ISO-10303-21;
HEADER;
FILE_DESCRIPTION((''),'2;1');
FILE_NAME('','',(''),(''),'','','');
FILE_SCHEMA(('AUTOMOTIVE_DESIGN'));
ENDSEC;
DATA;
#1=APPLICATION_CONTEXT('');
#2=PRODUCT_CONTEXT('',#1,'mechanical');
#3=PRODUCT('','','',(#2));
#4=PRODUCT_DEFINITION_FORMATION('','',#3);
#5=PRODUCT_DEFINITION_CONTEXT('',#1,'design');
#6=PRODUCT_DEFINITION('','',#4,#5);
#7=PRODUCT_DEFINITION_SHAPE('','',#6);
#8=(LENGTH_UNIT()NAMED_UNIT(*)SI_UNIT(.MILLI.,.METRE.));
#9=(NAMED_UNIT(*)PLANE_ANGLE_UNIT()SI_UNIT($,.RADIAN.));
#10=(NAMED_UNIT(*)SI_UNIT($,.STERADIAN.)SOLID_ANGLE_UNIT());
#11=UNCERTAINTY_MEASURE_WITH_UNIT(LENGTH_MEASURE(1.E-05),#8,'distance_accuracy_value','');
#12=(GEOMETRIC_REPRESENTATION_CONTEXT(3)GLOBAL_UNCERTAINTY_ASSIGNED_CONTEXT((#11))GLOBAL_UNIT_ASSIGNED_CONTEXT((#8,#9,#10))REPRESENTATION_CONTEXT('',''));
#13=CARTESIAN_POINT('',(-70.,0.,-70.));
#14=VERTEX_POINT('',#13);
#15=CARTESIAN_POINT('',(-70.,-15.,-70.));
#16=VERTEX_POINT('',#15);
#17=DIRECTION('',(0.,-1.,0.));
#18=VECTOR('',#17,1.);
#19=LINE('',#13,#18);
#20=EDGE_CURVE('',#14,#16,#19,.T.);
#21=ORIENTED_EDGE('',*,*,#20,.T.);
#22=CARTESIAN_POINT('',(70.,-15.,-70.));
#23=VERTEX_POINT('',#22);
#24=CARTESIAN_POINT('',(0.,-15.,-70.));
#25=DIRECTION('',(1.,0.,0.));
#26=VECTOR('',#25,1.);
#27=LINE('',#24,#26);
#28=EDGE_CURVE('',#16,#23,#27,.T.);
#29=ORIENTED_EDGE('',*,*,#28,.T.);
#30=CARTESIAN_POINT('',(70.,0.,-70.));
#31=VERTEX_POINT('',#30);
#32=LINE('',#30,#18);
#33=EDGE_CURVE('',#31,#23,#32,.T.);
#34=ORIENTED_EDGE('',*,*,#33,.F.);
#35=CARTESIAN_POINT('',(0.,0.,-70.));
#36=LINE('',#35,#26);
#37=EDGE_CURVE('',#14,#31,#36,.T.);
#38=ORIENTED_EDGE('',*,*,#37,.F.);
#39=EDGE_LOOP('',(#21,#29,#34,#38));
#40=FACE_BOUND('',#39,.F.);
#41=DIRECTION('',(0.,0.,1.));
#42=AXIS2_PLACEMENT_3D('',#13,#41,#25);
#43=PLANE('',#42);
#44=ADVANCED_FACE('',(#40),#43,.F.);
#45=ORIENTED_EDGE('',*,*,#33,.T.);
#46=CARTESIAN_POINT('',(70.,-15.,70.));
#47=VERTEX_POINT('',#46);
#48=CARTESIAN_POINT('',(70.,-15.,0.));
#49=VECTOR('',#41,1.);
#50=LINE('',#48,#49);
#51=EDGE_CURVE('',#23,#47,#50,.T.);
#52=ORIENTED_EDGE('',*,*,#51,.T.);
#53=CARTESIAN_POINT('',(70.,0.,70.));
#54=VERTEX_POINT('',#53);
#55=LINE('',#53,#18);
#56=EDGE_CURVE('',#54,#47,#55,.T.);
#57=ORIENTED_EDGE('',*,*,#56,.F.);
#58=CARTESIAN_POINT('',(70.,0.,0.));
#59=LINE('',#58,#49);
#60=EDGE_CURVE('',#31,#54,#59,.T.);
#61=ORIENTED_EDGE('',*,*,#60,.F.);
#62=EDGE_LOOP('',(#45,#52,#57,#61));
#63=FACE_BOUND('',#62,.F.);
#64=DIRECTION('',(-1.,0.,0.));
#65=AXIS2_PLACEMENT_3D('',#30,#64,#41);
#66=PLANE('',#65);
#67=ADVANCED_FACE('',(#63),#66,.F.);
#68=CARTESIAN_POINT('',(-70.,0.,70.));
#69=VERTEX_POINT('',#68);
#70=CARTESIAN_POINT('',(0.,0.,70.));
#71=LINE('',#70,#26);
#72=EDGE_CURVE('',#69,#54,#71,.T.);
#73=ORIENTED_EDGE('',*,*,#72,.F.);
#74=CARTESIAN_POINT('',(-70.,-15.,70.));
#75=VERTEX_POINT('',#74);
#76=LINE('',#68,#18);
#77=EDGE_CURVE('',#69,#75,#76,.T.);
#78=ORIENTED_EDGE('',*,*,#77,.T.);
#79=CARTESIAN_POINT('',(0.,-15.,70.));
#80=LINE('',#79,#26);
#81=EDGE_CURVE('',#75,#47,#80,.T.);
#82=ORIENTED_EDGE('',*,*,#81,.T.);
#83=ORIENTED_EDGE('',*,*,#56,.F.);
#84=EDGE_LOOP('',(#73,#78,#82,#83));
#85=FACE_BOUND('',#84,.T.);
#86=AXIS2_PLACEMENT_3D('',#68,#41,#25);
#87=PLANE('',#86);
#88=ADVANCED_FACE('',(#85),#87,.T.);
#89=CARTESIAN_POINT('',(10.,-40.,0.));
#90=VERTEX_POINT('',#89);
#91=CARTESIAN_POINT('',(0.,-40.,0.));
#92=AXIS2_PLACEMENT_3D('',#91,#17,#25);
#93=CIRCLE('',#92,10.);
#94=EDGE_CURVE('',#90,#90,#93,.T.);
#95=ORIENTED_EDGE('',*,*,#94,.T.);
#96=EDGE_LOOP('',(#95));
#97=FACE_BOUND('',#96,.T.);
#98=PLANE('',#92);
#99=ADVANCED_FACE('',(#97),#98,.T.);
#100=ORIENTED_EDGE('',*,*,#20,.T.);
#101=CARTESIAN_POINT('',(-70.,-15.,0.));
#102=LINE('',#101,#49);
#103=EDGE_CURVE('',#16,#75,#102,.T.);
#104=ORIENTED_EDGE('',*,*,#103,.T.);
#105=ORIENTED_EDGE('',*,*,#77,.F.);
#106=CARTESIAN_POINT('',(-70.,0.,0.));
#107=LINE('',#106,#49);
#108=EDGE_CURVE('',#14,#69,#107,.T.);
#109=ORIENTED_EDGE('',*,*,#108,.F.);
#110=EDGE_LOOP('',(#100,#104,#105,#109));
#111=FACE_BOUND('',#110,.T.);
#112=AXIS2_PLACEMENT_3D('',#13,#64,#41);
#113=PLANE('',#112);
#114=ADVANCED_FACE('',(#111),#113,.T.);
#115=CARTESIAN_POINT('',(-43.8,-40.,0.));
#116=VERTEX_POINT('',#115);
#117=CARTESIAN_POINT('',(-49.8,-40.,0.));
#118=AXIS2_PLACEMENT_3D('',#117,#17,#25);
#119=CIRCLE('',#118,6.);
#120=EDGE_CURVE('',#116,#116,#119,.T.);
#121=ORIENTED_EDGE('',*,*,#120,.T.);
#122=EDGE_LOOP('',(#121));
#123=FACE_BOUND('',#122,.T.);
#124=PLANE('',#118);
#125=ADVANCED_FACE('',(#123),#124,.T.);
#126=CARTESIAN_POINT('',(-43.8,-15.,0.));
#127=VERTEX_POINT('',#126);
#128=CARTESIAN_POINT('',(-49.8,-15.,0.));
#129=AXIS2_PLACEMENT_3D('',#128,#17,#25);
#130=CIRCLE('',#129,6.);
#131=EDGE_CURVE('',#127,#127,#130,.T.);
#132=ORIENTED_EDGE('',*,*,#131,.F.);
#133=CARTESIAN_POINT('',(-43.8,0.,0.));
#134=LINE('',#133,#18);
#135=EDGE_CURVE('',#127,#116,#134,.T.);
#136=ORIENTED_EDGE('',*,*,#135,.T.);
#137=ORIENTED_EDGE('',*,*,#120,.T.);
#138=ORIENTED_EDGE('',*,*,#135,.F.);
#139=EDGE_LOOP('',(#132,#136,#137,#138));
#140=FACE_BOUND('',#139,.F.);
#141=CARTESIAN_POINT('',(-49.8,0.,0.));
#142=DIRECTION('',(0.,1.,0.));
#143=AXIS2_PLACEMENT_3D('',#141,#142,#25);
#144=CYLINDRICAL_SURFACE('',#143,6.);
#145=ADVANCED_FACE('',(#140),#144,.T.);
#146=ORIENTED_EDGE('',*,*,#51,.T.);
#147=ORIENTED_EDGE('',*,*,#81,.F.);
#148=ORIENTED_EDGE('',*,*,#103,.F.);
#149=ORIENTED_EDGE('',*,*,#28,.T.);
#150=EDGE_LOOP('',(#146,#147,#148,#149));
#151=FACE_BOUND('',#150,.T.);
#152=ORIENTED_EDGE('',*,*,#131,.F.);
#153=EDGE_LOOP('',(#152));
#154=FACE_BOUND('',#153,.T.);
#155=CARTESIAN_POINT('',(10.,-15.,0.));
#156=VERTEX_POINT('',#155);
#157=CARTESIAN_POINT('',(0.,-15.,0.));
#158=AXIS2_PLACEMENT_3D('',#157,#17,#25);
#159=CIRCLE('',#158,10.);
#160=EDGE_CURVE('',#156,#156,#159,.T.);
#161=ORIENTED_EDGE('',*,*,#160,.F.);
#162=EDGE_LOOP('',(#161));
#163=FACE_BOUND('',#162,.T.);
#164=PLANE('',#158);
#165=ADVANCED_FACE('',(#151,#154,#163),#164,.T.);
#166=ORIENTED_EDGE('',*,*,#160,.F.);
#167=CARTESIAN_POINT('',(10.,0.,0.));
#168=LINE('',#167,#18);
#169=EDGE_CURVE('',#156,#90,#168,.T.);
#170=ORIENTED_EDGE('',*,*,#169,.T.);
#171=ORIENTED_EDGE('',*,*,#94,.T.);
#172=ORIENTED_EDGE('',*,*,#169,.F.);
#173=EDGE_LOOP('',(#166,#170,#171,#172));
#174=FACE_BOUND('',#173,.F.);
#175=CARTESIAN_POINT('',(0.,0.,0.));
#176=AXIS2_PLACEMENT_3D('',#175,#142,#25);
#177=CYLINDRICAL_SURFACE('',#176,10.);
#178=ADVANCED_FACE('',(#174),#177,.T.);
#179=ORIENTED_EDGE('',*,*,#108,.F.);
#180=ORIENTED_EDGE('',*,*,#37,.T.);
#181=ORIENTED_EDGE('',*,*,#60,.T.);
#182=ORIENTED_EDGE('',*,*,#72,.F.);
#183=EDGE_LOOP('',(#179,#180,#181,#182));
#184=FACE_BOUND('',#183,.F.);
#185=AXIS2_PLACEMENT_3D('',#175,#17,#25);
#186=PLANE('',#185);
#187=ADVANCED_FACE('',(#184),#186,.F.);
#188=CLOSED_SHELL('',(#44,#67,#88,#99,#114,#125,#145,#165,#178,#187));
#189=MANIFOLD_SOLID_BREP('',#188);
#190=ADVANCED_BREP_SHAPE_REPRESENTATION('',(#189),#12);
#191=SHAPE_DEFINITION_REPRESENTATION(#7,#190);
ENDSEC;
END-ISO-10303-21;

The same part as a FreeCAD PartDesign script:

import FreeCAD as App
import Part
import Sketcher
from FreeCAD import Vector
Q = App.Units.Quantity

doc = App.newDocument("Part")
params = doc.addObject("Spreadsheet::Sheet", "Params")
for row, (alias, value) in enumerate([
    ("sketch1_diameter", "12 mm"),
    ("pad1_length", "40 mm"),
    ("sketch2_diameter", "20 mm"),
    ("pad2_length", "40 mm"),
    ("sketch3_diameter", "12 mm"),
    ("sketch3_diameter2", "20 mm"),
    ("sketch3_width", "140 mm"),
    ("pad3_length", "15 mm"),
], start=1):
    params.set(f"A{row}", alias)
    params.set(f"B{row}", "=" + value)
    params.setAlias(f"B{row}", alias)

body = doc.addObject("PartDesign::Body", "Body")

# Sketch on XZ plane
sketch1 = body.newObject("Sketcher::SketchObject", "Sketch")
sketch1.AttachmentSupport = (doc.getObject("XZ_Plane"), [""])
sketch1.MapMode = "FlatFace"
sketch1.addGeometry(Part.Circle(Vector(-50, 0, 0), Vector(0, 0, 1), 6), False)
sketch1.addConstraint(Sketcher.Constraint("PointOnObject", 0, 3, -1))
sketch1.addConstraint(Sketcher.Constraint("Diameter", 0, Q("12 mm")))
sketch1.addConstraint(Sketcher.Constraint("DistanceX", 0, 3, -1, 1, Q("49.8 mm")))
sketch1.setExpression("Constraints[1]", "Params.sketch1_diameter")
pad1 = body.newObject("PartDesign::Pad", "Pad")
pad1.Profile = sketch1
pad1.setExpression("Length", "Params.pad1_length")
body2 = doc.addObject("PartDesign::Body", "Body001")

# Sketch on XZ plane
sketch2 = body2.newObject("Sketcher::SketchObject", "Sketch001")
sketch2.AttachmentSupport = (doc.getObject("XZ_Plane001"), [""])
sketch2.MapMode = "FlatFace"
sketch2.addGeometry(Part.Circle(Vector(0, 0, 0), Vector(0, 0, 1), 10), False)
sketch2.addConstraint(Sketcher.Constraint("Coincident", 0, 3, -1, 1))
sketch2.addConstraint(Sketcher.Constraint("Diameter", 0, Q("20 mm")))
sketch2.setExpression("Constraints[1]", "Params.sketch2_diameter")
pad2 = body2.newObject("PartDesign::Pad", "Pad001")
pad2.Profile = sketch2
pad2.setExpression("Length", "Params.pad2_length")
body.AllowCompound = True
doc.recompute()

boolean = body.newObject("PartDesign::Boolean", "Boolean")
boolean.Type = "Fuse"
boolean.addObjects([body2])

# Sketch on XZ plane
sketch3 = body.newObject("Sketcher::SketchObject", "Sketch002")
sketch3.AttachmentSupport = (doc.getObject("XZ_Plane"), [""])
sketch3.MapMode = "FlatFace"
sketch3.addGeometry(Part.LineSegment(Vector(-70, 70, 0), Vector(-70, -70, 0)), False)
sketch3.addGeometry(Part.LineSegment(Vector(-70, -70, 0), Vector(70, -70, 0)), False)
sketch3.addGeometry(Part.LineSegment(Vector(70, -70, 0), Vector(70, 70, 0)), False)
sketch3.addGeometry(Part.LineSegment(Vector(70, 70, 0), Vector(-70, 70, 0)), False)
sketch3.addGeometry(Part.Circle(Vector(-50, 0, 0), Vector(0, 0, 1), 6), False)
sketch3.addGeometry(Part.Circle(Vector(0, 0, 0), Vector(0, 0, 1), 10), False)
sketch3.addConstraint(Sketcher.Constraint("Coincident", 0, 2, 1, 1))
sketch3.addConstraint(Sketcher.Constraint("Coincident", 1, 2, 2, 1))
sketch3.addConstraint(Sketcher.Constraint("Coincident", 2, 2, 3, 1))
sketch3.addConstraint(Sketcher.Constraint("Coincident", 3, 2, 0, 1))
sketch3.addConstraint(Sketcher.Constraint("Vertical", 0))
sketch3.addConstraint(Sketcher.Constraint("Horizontal", 1))
sketch3.addConstraint(Sketcher.Constraint("Vertical", 2))
sketch3.addConstraint(Sketcher.Constraint("Horizontal", 3))
sketch3.addConstraint(Sketcher.Constraint("Coincident", 5, 3, -1, 1))
sketch3.addConstraint(Sketcher.Constraint("Symmetric", 0, 2, 2, 2, -1, 1))
sketch3.addConstraint(Sketcher.Constraint("PointOnObject", 4, 3, -1))
sketch3.addConstraint(Sketcher.Constraint("Equal", 3, 0))
sketch3.addConstraint(Sketcher.Constraint("Diameter", 4, Q("12 mm")))
sketch3.addConstraint(Sketcher.Constraint("Diameter", 5, Q("20 mm")))
sketch3.addConstraint(Sketcher.Constraint("DistanceX", 1, 1, 1, 2, Q("140 mm")))
sketch3.addConstraint(Sketcher.Constraint("DistanceX", 4, 3, -1, 1, Q("49.8 mm")))
sketch3.setExpression("Constraints[12]", "Params.sketch3_diameter")
sketch3.setExpression("Constraints[13]", "Params.sketch3_diameter2")
sketch3.setExpression("Constraints[14]", "Params.sketch3_width")
pad3 = body.newObject("PartDesign::Pad", "Pad002")
pad3.Profile = sketch3
pad3.setExpression("Length", "Params.pad3_length")

doc.recompute()
